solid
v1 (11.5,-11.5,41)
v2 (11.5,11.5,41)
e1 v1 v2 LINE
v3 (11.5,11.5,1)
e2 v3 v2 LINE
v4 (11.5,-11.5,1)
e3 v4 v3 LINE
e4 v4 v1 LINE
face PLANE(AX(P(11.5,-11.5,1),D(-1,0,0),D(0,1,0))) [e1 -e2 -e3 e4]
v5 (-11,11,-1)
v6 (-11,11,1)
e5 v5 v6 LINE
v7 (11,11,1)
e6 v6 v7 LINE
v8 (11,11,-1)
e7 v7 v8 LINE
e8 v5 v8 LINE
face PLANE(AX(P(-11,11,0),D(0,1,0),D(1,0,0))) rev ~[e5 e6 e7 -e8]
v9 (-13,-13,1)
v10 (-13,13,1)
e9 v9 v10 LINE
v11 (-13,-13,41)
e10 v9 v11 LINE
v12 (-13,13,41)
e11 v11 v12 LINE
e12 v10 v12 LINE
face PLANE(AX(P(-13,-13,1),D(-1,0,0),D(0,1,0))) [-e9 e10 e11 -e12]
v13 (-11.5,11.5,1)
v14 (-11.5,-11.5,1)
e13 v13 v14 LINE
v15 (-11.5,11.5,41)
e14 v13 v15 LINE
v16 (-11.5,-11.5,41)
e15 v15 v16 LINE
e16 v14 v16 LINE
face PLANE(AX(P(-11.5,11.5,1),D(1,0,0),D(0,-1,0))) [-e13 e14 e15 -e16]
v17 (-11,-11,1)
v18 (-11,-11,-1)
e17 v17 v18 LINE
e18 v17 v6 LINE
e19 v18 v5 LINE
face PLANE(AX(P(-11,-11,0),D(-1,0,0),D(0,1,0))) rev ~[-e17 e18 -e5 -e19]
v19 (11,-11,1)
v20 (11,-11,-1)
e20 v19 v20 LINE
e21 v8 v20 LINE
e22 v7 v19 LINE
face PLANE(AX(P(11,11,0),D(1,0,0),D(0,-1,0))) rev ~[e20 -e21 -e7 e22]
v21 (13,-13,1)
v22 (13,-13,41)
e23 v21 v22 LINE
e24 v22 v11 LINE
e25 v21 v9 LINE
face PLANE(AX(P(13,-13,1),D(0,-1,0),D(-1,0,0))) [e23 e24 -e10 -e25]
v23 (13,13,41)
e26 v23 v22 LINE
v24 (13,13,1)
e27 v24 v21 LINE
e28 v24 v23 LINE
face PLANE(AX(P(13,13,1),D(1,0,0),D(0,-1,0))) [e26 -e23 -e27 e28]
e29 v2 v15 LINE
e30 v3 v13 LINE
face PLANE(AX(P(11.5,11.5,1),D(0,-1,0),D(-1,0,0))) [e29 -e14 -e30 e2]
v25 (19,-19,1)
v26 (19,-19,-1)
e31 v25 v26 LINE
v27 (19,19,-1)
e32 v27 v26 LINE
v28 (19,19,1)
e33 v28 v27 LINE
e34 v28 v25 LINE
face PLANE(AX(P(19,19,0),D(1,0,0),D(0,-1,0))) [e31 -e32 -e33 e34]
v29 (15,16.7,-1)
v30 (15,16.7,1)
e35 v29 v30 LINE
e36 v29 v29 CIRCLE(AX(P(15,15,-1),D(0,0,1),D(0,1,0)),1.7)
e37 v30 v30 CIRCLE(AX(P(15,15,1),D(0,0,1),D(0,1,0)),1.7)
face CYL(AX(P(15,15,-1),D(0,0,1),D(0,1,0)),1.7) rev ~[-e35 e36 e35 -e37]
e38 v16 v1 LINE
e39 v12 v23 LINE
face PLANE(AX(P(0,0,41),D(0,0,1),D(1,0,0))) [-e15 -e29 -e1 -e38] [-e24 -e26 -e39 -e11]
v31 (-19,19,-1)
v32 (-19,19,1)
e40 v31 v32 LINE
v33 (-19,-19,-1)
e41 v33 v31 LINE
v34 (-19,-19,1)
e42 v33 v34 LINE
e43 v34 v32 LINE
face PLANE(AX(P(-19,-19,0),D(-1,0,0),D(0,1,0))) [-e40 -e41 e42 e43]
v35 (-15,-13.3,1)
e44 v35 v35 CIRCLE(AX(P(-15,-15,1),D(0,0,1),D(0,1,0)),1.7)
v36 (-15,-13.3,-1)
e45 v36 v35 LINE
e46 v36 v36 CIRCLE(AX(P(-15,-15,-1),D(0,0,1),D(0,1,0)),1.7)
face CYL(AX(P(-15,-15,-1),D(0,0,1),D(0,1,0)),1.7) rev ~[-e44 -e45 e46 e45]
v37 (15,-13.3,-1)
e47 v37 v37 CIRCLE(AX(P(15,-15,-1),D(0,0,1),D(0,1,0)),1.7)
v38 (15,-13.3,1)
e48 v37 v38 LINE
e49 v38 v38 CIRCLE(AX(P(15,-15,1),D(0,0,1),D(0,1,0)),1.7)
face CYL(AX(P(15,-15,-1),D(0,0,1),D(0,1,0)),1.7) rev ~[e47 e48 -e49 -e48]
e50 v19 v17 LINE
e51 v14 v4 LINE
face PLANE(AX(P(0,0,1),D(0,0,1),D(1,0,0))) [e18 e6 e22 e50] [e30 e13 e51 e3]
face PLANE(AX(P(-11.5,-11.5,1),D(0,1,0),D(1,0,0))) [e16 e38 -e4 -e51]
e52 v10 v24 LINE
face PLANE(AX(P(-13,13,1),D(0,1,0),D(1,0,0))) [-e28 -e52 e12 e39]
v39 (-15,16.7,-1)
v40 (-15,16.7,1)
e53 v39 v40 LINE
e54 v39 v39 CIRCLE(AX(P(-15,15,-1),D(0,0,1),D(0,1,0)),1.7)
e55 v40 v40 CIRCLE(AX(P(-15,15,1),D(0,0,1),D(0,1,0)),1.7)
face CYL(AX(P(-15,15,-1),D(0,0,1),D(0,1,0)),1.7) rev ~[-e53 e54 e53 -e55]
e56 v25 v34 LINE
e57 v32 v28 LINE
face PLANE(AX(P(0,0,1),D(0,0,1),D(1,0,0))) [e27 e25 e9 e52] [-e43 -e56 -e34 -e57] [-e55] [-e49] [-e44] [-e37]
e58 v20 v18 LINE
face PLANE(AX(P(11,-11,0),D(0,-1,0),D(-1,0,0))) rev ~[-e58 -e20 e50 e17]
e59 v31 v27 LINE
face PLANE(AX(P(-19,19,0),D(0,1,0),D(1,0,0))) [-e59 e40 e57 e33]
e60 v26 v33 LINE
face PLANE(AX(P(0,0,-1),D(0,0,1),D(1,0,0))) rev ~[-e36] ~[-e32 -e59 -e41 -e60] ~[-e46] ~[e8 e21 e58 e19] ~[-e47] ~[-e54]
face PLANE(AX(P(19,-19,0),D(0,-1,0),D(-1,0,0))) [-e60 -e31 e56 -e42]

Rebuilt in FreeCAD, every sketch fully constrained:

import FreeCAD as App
import Part
import Sketcher
from FreeCAD import Vector
Q = App.Units.Quantity

doc = App.newDocument("Part")
body = doc.addObject("PartDesign::Body", "Body")

# Sketch on XY plane
sketch1 = body.newObject("Sketcher::SketchObject", "Sketch")
sketch1.AttachmentSupport = (doc.getObject("XY_Plane"), [""])
sketch1.MapMode = "FlatFace"
sketch1.addGeometry([
    Part.LineSegment(Vector(19, 19, 0), Vector(-19, 19, 0)),  # 0
    Part.LineSegment(Vector(-19, 19, 0), Vector(-19, -19, 0)),  # 1
    Part.LineSegment(Vector(-19, -19, 0), Vector(19, -19, 0)),  # 2
    Part.LineSegment(Vector(19, -19, 0), Vector(19, 19, 0)),  # 3
    Part.LineSegment(Vector(-11, -11, 0), Vector(-11, 11, 0)),  # 4
    Part.LineSegment(Vector(-11, 11, 0), Vector(11, 11, 0)),  # 5
    Part.LineSegment(Vector(11, 11, 0), Vector(11, -11, 0)),  # 6
    Part.LineSegment(Vector(11, -11, 0), Vector(-11, -11, 0)),  # 7
], False)
sketch1.addConstraint([
    Sketcher.Constraint("Coincident", 0, 2, 1, 1),
    Sketcher.Constraint("Coincident", 1, 2, 2, 1),
    Sketcher.Constraint("Coincident", 2, 2, 3, 1),
    Sketcher.Constraint("Coincident", 3, 2, 0, 1),
    Sketcher.Constraint("Coincident", 4, 2, 5, 1),
    Sketcher.Constraint("Coincident", 5, 2, 6, 1),
    Sketcher.Constraint("Coincident", 6, 2, 7, 1),
    Sketcher.Constraint("Coincident", 7, 2, 4, 1),
    Sketcher.Constraint("Horizontal", 0),
    Sketcher.Constraint("Vertical", 1),
    Sketcher.Constraint("Horizontal", 2),
    Sketcher.Constraint("Vertical", 3),
    Sketcher.Constraint("Vertical", 4),
    Sketcher.Constraint("Horizontal", 5),
    Sketcher.Constraint("Vertical", 6),
    Sketcher.Constraint("Horizontal", 7),
    Sketcher.Constraint("Symmetric", 0, 2, 2, 2, -1, 1),
    Sketcher.Constraint("Symmetric", 4, 2, 6, 2, -1, 1),
    Sketcher.Constraint("Equal", 2, 1),
    Sketcher.Constraint("Equal", 7, 4),
    Sketcher.Constraint("DistanceX", 0, 2, 0, 1, Q("38 mm")),
    Sketcher.Constraint("DistanceX", 5, 1, 5, 2, Q("22 mm")),
])
pad1 = body.newObject("PartDesign::Pad", "Pad")
pad1.Profile = sketch1
pad1.Length = 2
pad1.Midplane = True

# Sketch on XY plane
sketch2 = body.newObject("Sketcher::SketchObject", "Sketch001")
sketch2.AttachmentSupport = (doc.getObject("XY_Plane"), [""])
sketch2.MapMode = "FlatFace"
sketch2.AttachmentOffset = App.Placement(Vector(0, 0, 1), App.Rotation())
sketch2.addGeometry([
    Part.LineSegment(Vector(13, 13, 0), Vector(-13, 13, 0)),  # 0
    Part.LineSegment(Vector(-13, 13, 0), Vector(-13, -13, 0)),  # 1
    Part.LineSegment(Vector(-13, -13, 0), Vector(13, -13, 0)),  # 2
    Part.LineSegment(Vector(13, -13, 0), Vector(13, 13, 0)),  # 3
    Part.LineSegment(Vector(12, -12, 0), Vector(-12, -12, 0)),  # 4
    Part.LineSegment(Vector(-12, -12, 0), Vector(-12, 12, 0)),  # 5
    Part.LineSegment(Vector(-12, 12, 0), Vector(12, 12, 0)),  # 6
    Part.LineSegment(Vector(12, 12, 0), Vector(12, -12, 0)),  # 7
], False)
sketch2.addConstraint([
    Sketcher.Constraint("Coincident", 0, 2, 1, 1),
    Sketcher.Constraint("Coincident", 1, 2, 2, 1),
    Sketcher.Constraint("Coincident", 2, 2, 3, 1),
    Sketcher.Constraint("Coincident", 3, 2, 0, 1),
    Sketcher.Constraint("Coincident", 4, 2, 5, 1),
    Sketcher.Constraint("Coincident", 5, 2, 6, 1),
    Sketcher.Constraint("Coincident", 6, 2, 7, 1),
    Sketcher.Constraint("Coincident", 7, 2, 4, 1),
    Sketcher.Constraint("Horizontal", 0),
    Sketcher.Constraint("Vertical", 1),
    Sketcher.Constraint("Horizontal", 2),
    Sketcher.Constraint("Vertical", 3),
    Sketcher.Constraint("Horizontal", 4),
    Sketcher.Constraint("Vertical", 5),
    Sketcher.Constraint("Horizontal", 6),
    Sketcher.Constraint("Vertical", 7),
    Sketcher.Constraint("Symmetric", 0, 2, 2, 2, -1, 1),
    Sketcher.Constraint("Symmetric", 4, 2, 6, 2, -1, 1),
    Sketcher.Constraint("Equal", 2, 1),
    Sketcher.Constraint("Equal", 6, 5),
    Sketcher.Constraint("DistanceX", 0, 2, 0, 1, Q("26 mm")),
    Sketcher.Constraint("DistanceX", 4, 2, 4, 1, Q("23 mm")),
])
pad2 = body.newObject("PartDesign::Pad", "Pad001")
pad2.Profile = sketch2
pad2.Length = 40

# Sketch on XY plane
sketch3 = body.newObject("Sketcher::SketchObject", "Sketch002")
sketch3.AttachmentSupport = (doc.getObject("XY_Plane"), [""])
sketch3.MapMode = "FlatFace"
sketch3.AttachmentOffset = App.Placement(Vector(0, 0, -1), App.Rotation())
sketch3.addGeometry([
    Part.Circle(Vector(-15, -15, 0), Vector(0, 0, 1), 1.7),
    Part.Circle(Vector(15, -15, 0), Vector(0, 0, 1), 1.7),
    Part.Circle(Vector(-15, 15, 0), Vector(0, 0, 1), 1.7),
    Part.Circle(Vector(15, 15, 0), Vector(0, 0, 1), 1.7),
], False)
sketch3.addConstraint([
    Sketcher.Constraint("Equal", 0, 1),
    Sketcher.Constraint("Equal", 1, 2),
    Sketcher.Constraint("Equal", 2, 3),
    Sketcher.Constraint("Symmetric", 1, 3, 2, 3, -1, 1),
    Sketcher.Constraint("Symmetric", 0, 3, 3, 3, -1, 1),
    Sketcher.Constraint("Symmetric", 0, 3, 1, 3, -2),
    Sketcher.Constraint("Diameter", 0, Q("3.4 mm")),
    Sketcher.Constraint("DistanceX", 0, 3, -1, 1, Q("15 mm")),
    Sketcher.Constraint("DistanceY", 0, 3, -1, 1, Q("15 mm")),
])
doc.recompute()
hole = body.newObject("PartDesign::Hole", "Hole")
hole.Profile = sketch3
hole.ThreadType = "None"
hole.Diameter = 3.4
hole.DepthType = "ThroughAll"
hole.Reversed = True

doc.recompute()
